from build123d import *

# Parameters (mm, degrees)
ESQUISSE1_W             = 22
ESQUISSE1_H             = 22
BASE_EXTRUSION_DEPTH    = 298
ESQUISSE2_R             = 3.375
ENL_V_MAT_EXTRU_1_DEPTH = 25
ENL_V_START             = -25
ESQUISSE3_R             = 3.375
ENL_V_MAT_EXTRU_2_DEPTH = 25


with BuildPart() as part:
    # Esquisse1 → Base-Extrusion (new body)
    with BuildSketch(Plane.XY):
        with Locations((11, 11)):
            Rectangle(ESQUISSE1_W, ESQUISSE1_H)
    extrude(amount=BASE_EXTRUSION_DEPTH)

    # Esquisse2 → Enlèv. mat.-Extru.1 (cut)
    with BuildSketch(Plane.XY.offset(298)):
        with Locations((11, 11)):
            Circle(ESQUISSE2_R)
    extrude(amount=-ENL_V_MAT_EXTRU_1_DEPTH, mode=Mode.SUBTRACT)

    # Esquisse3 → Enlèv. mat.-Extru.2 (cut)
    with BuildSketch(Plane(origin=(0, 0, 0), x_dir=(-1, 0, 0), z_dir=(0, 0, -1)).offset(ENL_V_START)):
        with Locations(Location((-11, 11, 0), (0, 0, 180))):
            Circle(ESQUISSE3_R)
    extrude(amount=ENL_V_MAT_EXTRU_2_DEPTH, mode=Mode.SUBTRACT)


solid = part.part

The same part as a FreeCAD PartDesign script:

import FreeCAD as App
import Part
import Sketcher

V = App.Vector
Q = App.Units.Quantity

doc = App.newDocument("Part")
body = doc.addObject("PartDesign::Body", "Body")

# Sketch on XY plane
sketch1 = doc.addObject("Sketcher::SketchObject", "Sketch")
body.addObject(sketch1)
sketch1.AttachmentSupport = (doc.XY_Plane, [""])
sketch1.MapMode = "FlatFace"
sketch1.addGeometry([
    Part.LineSegment(V(0, 22, 0), V(0, 0, 0)),
    Part.LineSegment(V(0, 0, 0), V(22, 0, 0)),
    Part.LineSegment(V(22, 0, 0), V(22, 22, 0)),
    Part.LineSegment(V(22, 22, 0), V(0, 22, 0)),
], False)
sketch1.addConstraint([
    Sketcher.Constraint("Coincident", 0, 2, 1, 1),
    Sketcher.Constraint("Coincident", 1, 2, 2, 1),
    Sketcher.Constraint("Coincident", 2, 2, 3, 1),
    Sketcher.Constraint("Coincident", 3, 2, 0, 1),
    Sketcher.Constraint("Vertical", 0),
    Sketcher.Constraint("Horizontal", 1),
    Sketcher.Constraint("Vertical", 2),
    Sketcher.Constraint("Horizontal", 3),
    Sketcher.Constraint("Coincident", 0, 2, -1, 1),
    Sketcher.Constraint("Equal", 3, 0),
    Sketcher.Constraint("DistanceX", 1, 1, 1, 2, Q("22 mm")),
])
pad1 = doc.addObject("PartDesign::Pad", "Pad")
body.addObject(pad1)
pad1.Profile = sketch1
pad1.Length = 298

# Sketch on XY plane
sketch2 = doc.addObject("Sketcher::SketchObject", "Sketch001")
body.addObject(sketch2)
sketch2.AttachmentSupport = (doc.XY_Plane, [""])
sketch2.MapMode = "FlatFace"
sketch2.AttachmentOffset = App.Placement(V(0, 0, 298), App.Rotation())
sketch2.addGeometry(Part.Circle(V(11, 11, 0), V(0, 0, 1), 3.4), False)
sketch2.addConstraint([
    Sketcher.Constraint("Diameter", 0, Q("6.75 mm")),
    Sketcher.Constraint("DistanceX", -1, 1, 0, 3, Q("11 mm")),
    Sketcher.Constraint("DistanceY", -1, 1, 0, 3, Q("11 mm")),
])
pocket1 = doc.addObject("PartDesign::Pocket", "Pocket")
body.addObject(pocket1)
pocket1.Profile = sketch2
pocket1.Length = 25

# Sketch on XY plane
sketch3 = doc.addObject("Sketcher::SketchObject", "Sketch002")
body.addObject(sketch3)
sketch3.AttachmentSupport = (doc.XY_Plane, [""])
sketch3.MapMode = "FlatFace"
sketch3.AttachmentOffset = App.Placement(V(0, 0, 25), App.Rotation())
sketch3.addGeometry(Part.Circle(V(11, 11, 0), V(0, 0, 1), 3.4), False)
sketch3.addConstraint([
    Sketcher.Constraint("Diameter", 0, Q("6.75 mm")),
    Sketcher.Constraint("DistanceX", -1, 1, 0, 3, Q("11 mm")),
    Sketcher.Constraint("DistanceY", -1, 1, 0, 3, Q("11 mm")),
])
pocket2 = doc.addObject("PartDesign::Pocket", "Pocket001")
body.addObject(pocket2)
pocket2.Profile = sketch3
pocket2.Length = 25

doc.recompute()
